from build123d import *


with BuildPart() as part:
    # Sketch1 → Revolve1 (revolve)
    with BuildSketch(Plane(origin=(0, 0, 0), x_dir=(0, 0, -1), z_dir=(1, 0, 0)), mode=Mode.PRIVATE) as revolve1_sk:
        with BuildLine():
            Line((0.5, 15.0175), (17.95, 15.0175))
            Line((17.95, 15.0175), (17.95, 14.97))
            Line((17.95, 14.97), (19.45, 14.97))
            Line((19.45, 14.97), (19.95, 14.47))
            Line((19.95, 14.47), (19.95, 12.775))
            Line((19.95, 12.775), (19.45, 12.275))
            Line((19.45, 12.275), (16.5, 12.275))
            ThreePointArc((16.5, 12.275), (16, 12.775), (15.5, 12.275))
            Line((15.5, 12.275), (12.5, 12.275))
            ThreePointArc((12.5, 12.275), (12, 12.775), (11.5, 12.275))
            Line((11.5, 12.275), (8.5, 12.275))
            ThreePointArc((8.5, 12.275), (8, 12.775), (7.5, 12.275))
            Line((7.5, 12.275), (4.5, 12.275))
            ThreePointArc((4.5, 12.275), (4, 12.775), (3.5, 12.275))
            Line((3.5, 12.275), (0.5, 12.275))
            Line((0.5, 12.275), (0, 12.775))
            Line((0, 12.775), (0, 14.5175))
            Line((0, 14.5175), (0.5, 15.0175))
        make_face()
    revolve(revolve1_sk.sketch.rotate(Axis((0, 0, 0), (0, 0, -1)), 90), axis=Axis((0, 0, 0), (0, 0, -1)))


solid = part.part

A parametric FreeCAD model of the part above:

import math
import FreeCAD as App
import Part
import Sketcher
Q = App.Units.Quantity

doc = App.newDocument("Part")
body = doc.addObject("PartDesign::Body", "Body")

# Sketch on YZ plane
sketch1 = doc.addObject("Sketcher::SketchObject", "Sketch")
body.addObject(sketch1)
sketch1.AttachmentSupport = (doc.YZ_Plane, [""])
sketch1.MapMode = "FlatFace"
sketch1.addGeometry([
    Part.LineSegment(App.Vector(15.0175, -17.95, 0), App.Vector(15.0175, -0.5, 0)),  # 0
    Part.LineSegment(App.Vector(15.0175, -0.5, 0), App.Vector(14.5175, 0, 0)),  # 1
    Part.LineSegment(App.Vector(14.5175, 0, 0), App.Vector(12.775, 0, 0)),  # 2
    Part.LineSegment(App.Vector(12.775, 0, 0), App.Vector(12.275, -0.5, 0)),  # 3
    Part.LineSegment(App.Vector(12.275, -0.5, 0), App.Vector(12.275, -3.5, 0)),  # 4
    Part.ArcOfCircle(Part.Circle(App.Vector(12.275, -4, 0), App.Vector(0, 0, 1), 0.5), math.radians(-90), math.radians(90)),  # 5
    Part.LineSegment(App.Vector(12.275, -4.5, 0), App.Vector(12.275, -7.5, 0)),  # 6
    Part.ArcOfCircle(Part.Circle(App.Vector(12.275, -8, 0), App.Vector(0, 0, 1), 0.5), math.radians(-90), math.radians(90)),  # 7
    Part.LineSegment(App.Vector(12.275, -8.5, 0), App.Vector(12.275, -11.5, 0)),  # 8
    Part.ArcOfCircle(Part.Circle(App.Vector(12.275, -12, 0), App.Vector(0, 0, 1), 0.5), math.radians(-90), math.radians(90)),  # 9
    Part.LineSegment(App.Vector(12.275, -12.5, 0), App.Vector(12.275, -15.5, 0)),  # 10
    Part.ArcOfCircle(Part.Circle(App.Vector(12.275, -16, 0), App.Vector(0, 0, 1), 0.5), math.radians(-90), math.radians(90)),  # 11
    Part.LineSegment(App.Vector(12.275, -16.5, 0), App.Vector(12.275, -19.45, 0)),  # 12
    Part.LineSegment(App.Vector(12.275, -19.45, 0), App.Vector(12.775, -19.95, 0)),  # 13
    Part.LineSegment(App.Vector(12.775, -19.95, 0), App.Vector(14.47, -19.95, 0)),  # 14
    Part.LineSegment(App.Vector(14.47, -19.95, 0), App.Vector(14.97, -19.45, 0)),  # 15
    Part.LineSegment(App.Vector(14.97, -19.45, 0), App.Vector(14.97, -17.95, 0)),  # 16
    Part.LineSegment(App.Vector(14.97, -17.95, 0), App.Vector(15.0175, -17.95, 0)),  # 17
], False)
sketch1.addConstraint([
    Sketcher.Constraint("Coincident", 0, 2, 1, 1),
    Sketcher.Constraint("Coincident", 1, 2, 2, 1),
    Sketcher.Constraint("Coincident", 2, 2, 3, 1),
    Sketcher.Constraint("Coincident", 3, 2, 4, 1),
    Sketcher.Constraint("Coincident", 4, 2, 5, 2),
    Sketcher.Constraint("Coincident", 5, 1, 6, 1),
    Sketcher.Constraint("Coincident", 6, 2, 7, 2),
    Sketcher.Constraint("Coincident", 7, 1, 8, 1),
    Sketcher.Constraint("Coincident", 8, 2, 9, 2),
    Sketcher.Constraint("Coincident", 9, 1, 10, 1),
    Sketcher.Constraint("Coincident", 10, 2, 11, 2),
    Sketcher.Constraint("Coincident", 11, 1, 12, 1),
    Sketcher.Constraint("Coincident", 12, 2, 13, 1),
    Sketcher.Constraint("Coincident", 13, 2, 14, 1),
    Sketcher.Constraint("Coincident", 14, 2, 15, 1),
    Sketcher.Constraint("Coincident", 15, 2, 16, 1),
    Sketcher.Constraint("Coincident", 16, 2, 17, 1),
    Sketcher.Constraint("Coincident", 17, 2, 0, 1),
    Sketcher.Constraint("Vertical", 0),
    Sketcher.Constraint("Horizontal", 2),
    Sketcher.Constraint("Vertical", 4),
    Sketcher.Constraint("Vertical", 6),
    Sketcher.Constraint("Vertical", 8),
    Sketcher.Constraint("Vertical", 10),
    Sketcher.Constraint("Vertical", 12),
    Sketcher.Constraint("Horizontal", 14),
    Sketcher.Constraint("Vertical", 16),
    Sketcher.Constraint("Horizontal", 17),
    Sketcher.Constraint("Equal", 5, 7),
    Sketcher.Constraint("Equal", 7, 9),
    Sketcher.Constraint("Equal", 9, 11),
    Sketcher.Constraint("PointOnObject", 1, 2, -1),
    Sketcher.Constraint("Perpendicular", 1, 3),
    Sketcher.Constraint("Perpendicular", 3, 13),
    Sketcher.Constraint("Perpendicular", 13, 15),
    Sketcher.Constraint("Horizontal", 0, 2, 3, 2),
    Sketcher.Constraint("Horizontal", 12, 2, 15, 2),
    Sketcher.Constraint("Vertical", 5, 3, 7, 3),
    Sketcher.Constraint("Vertical", 7, 3, 9, 3),
    Sketcher.Constraint("Vertical", 9, 3, 11, 3),
    Sketcher.Constraint("Vertical", 11, 3, 3, 2),
    Sketcher.Constraint("Vertical", 4, 2, 5, 1),
    Sketcher.Constraint("Vertical", 6, 2, 7, 1),
    Sketcher.Constraint("Vertical", 8, 2, 9, 1),
    Sketcher.Constraint("Vertical", 10, 2, 11, 1),
    Sketcher.Constraint("Vertical", 2, 2, 13, 2),
    Sketcher.Constraint("Equal", 4, 6),
    Sketcher.Constraint("Equal", 6, 8),
    Sketcher.Constraint("Equal", 8, 10),
    Sketcher.Constraint("Equal", 1, 3),
    Sketcher.Constraint("Radius", 5, Q("0.5 mm")),
    Sketcher.Constraint("DistanceY", 4, 2, 4, 1, Q("3 mm")),
    Sketcher.Constraint("DistanceY", 16, 1, 16, 2, Q("1.5 mm")),
    Sketcher.Constraint("DistanceY", 5, 3, -1, 1, Q("4 mm")),
    Sketcher.Constraint("DistanceY", 0, 1, 0, 2, Q("17.45 mm")),
    Sketcher.Constraint("DistanceX", 14, 1, 14, 2, Q("1.695 mm")),
    Sketcher.Constraint("DistanceX", -1, 1, 14, 2, Q("14.47 mm")),
    Sketcher.Constraint("DistanceX", 2, 2, 2, 1, Q("1.7425 mm")),
])
revolution = doc.addObject("PartDesign::Revolution", "Revolution")
body.addObject(revolution)
revolution.Profile = sketch1
revolution.ReferenceAxis = (sketch1, ["V_Axis"])
revolution.Angle = 360

doc.recompute()
